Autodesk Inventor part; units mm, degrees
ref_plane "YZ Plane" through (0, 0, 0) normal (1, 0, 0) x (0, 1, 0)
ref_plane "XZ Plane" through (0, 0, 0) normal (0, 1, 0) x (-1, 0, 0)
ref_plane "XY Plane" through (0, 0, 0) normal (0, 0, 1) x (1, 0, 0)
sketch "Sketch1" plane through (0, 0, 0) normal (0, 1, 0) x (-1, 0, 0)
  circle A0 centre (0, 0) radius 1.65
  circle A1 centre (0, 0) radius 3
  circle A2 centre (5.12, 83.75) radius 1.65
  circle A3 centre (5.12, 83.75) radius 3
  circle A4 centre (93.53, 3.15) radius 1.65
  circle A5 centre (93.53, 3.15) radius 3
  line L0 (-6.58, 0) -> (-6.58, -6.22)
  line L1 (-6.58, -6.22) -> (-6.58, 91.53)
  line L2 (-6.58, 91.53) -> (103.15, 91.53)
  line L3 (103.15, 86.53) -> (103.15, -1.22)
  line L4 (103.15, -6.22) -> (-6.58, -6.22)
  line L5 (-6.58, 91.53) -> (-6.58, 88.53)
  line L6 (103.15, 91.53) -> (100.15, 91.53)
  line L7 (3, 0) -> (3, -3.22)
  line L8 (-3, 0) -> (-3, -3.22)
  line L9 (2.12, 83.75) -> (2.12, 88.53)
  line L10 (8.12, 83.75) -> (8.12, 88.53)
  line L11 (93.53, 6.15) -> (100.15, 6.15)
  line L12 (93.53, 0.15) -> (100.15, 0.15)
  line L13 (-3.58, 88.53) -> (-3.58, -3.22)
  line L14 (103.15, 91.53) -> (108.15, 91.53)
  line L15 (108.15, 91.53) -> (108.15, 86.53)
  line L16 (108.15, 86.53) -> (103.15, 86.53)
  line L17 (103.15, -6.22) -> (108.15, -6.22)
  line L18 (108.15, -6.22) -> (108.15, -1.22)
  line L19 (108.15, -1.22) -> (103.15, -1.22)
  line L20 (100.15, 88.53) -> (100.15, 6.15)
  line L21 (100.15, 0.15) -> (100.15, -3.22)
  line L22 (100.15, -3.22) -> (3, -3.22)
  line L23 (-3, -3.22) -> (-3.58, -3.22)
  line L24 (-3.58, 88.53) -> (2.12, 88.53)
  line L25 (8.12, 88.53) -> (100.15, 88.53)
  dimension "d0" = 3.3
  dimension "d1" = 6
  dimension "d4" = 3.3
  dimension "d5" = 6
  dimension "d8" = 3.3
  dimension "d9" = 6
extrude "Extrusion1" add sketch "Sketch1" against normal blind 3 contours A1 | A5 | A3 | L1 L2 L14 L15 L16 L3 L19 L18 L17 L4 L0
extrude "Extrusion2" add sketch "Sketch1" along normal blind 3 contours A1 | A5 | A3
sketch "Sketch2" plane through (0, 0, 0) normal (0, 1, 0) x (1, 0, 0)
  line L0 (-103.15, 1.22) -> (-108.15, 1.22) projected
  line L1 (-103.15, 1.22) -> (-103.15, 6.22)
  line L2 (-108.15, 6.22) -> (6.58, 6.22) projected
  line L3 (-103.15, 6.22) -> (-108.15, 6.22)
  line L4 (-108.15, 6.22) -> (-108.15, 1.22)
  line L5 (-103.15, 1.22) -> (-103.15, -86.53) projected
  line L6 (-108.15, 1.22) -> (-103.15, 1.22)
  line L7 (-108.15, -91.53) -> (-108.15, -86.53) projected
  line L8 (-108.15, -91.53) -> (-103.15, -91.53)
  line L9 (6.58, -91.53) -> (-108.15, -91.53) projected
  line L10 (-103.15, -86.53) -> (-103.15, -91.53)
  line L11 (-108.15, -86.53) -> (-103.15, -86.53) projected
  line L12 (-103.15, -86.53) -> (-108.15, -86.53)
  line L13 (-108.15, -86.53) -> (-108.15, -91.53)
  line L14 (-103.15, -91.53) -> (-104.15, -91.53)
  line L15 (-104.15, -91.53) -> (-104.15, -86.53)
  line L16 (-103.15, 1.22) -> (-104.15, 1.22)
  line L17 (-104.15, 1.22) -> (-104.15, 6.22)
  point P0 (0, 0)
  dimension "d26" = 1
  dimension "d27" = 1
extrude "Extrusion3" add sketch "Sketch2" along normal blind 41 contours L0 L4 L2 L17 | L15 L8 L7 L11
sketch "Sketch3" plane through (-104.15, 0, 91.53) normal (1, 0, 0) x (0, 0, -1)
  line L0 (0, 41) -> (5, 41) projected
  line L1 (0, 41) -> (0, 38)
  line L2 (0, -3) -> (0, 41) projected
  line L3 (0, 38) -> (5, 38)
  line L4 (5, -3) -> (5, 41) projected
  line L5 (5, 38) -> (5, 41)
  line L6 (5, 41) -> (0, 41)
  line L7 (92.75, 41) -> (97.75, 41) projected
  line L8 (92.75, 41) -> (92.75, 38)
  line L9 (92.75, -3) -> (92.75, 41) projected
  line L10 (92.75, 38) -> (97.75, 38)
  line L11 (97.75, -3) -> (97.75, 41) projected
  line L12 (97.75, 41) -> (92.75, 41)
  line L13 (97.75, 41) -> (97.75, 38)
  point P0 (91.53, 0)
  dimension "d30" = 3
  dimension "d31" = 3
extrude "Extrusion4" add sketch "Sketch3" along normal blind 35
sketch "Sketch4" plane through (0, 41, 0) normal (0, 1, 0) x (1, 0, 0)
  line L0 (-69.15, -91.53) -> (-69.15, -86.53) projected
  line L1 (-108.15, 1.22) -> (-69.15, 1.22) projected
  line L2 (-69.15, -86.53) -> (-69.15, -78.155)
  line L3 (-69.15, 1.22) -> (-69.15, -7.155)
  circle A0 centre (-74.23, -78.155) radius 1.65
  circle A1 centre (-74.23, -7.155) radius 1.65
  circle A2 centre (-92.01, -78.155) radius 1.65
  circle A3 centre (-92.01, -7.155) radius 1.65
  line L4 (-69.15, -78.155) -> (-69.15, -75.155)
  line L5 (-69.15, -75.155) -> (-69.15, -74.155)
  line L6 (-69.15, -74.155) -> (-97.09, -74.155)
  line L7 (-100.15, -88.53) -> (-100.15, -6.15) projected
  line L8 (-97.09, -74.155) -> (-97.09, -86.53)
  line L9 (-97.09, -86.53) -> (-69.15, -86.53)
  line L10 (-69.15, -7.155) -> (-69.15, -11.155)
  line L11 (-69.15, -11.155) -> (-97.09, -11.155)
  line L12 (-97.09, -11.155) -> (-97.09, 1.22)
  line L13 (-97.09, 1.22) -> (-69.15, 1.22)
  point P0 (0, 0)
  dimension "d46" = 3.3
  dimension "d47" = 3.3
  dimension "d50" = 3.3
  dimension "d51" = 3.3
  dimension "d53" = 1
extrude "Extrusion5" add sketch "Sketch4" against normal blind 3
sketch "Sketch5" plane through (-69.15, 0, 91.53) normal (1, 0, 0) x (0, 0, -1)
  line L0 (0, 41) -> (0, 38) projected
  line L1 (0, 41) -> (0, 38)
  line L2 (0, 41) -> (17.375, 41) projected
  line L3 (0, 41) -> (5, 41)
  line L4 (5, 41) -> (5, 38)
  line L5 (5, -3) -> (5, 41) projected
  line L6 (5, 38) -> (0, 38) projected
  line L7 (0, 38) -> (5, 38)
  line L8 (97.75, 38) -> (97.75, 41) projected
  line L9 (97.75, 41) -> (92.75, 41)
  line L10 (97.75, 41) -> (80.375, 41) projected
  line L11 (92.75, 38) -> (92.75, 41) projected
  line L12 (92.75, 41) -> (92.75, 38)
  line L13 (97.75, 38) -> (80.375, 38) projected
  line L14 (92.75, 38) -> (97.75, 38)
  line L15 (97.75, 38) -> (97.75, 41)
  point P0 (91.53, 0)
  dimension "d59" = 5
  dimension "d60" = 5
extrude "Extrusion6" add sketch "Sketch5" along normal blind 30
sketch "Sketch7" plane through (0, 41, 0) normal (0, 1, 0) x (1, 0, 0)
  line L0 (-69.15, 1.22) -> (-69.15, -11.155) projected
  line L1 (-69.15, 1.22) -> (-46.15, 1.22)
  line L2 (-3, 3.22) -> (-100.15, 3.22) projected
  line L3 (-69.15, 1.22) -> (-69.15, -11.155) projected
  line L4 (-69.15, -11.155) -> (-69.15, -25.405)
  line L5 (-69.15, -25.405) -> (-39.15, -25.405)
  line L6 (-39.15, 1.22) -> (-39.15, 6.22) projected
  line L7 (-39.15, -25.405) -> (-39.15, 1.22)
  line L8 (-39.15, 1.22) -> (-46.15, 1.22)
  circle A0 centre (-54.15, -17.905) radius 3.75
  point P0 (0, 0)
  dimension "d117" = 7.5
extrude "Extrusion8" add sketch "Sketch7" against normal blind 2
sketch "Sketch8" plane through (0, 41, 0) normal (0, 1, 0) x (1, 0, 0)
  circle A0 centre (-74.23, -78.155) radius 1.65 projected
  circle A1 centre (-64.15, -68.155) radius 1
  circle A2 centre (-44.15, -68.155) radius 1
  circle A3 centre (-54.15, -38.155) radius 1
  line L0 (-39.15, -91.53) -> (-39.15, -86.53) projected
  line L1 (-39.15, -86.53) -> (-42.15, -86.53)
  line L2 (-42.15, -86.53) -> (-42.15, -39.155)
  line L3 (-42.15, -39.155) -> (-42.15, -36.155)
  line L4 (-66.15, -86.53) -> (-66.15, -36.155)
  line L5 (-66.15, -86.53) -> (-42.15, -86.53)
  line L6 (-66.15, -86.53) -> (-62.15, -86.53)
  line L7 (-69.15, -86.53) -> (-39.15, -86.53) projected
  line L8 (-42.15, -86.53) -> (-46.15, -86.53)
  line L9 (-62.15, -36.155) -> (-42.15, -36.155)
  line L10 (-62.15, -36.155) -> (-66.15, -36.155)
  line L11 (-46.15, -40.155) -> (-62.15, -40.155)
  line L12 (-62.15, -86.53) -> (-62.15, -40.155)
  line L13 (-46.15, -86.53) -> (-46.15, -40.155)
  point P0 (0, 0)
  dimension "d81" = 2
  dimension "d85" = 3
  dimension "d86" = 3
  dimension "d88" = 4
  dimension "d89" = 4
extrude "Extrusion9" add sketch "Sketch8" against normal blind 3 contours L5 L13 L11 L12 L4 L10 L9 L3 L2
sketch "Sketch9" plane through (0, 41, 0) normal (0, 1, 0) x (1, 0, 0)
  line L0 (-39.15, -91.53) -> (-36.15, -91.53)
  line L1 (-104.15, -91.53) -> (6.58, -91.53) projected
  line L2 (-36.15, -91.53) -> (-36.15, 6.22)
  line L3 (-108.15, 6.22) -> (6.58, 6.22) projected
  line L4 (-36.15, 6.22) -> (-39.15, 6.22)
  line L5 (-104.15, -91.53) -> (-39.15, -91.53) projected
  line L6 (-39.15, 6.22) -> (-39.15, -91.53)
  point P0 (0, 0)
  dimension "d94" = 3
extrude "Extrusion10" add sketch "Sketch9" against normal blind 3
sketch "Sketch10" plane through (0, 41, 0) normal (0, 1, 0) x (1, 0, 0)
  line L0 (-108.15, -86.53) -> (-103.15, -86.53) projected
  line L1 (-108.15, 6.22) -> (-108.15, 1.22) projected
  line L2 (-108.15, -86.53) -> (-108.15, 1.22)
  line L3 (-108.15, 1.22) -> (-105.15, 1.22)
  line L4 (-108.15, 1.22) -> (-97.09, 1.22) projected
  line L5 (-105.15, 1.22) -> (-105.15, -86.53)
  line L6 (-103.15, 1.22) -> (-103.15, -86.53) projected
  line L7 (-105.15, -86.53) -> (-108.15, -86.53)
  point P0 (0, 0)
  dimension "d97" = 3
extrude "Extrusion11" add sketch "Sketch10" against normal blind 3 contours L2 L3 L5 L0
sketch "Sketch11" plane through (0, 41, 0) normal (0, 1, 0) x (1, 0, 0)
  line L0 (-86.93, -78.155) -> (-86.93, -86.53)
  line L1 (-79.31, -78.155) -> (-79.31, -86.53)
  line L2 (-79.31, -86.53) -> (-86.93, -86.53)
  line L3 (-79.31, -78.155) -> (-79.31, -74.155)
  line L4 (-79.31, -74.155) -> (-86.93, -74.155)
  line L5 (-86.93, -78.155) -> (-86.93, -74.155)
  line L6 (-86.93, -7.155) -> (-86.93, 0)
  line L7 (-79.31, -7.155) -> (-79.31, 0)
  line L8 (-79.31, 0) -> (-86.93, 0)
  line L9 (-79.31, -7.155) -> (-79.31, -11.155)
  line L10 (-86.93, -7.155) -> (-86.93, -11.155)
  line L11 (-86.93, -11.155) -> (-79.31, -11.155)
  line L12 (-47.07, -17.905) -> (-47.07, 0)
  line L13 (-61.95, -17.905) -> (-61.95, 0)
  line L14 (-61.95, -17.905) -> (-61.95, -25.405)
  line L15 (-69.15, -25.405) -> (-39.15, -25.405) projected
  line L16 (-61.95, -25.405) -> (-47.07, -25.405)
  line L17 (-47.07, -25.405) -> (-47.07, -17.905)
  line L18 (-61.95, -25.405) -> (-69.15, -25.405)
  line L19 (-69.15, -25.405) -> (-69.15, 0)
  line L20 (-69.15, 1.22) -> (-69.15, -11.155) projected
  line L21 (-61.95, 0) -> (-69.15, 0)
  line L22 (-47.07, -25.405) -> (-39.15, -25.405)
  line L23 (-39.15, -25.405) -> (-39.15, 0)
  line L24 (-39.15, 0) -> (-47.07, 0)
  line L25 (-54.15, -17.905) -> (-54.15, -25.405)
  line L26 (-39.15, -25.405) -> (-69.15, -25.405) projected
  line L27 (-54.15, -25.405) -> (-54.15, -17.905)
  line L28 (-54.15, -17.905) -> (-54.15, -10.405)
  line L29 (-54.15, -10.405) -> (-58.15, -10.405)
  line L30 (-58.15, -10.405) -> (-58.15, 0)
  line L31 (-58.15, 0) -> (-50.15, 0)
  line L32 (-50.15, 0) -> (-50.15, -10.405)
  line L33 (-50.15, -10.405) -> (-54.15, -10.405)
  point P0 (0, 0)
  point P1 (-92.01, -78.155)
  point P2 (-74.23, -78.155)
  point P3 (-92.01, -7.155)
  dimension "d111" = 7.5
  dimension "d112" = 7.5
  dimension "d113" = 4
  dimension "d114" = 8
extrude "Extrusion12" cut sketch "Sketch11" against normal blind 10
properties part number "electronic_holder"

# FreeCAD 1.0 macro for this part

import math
import FreeCAD as App
import Part
import Sketcher
Q = App.Units.Quantity

doc = App.newDocument("Part")
body = doc.addObject("PartDesign::Body", "Body")

# Sketch on XZ plane
sketch1 = doc.addObject("Sketcher::SketchObject", "Sketch")
body.addObject(sketch1)
sketch1.AttachmentSupport = (doc.XZ_Plane, [""])
sketch1.MapMode = "FlatFace"
sketch1.addGeometry(Part.LineSegment(App.Vector(6.6, -6.2, 0), App.Vector(-108.2, -6.2, 0)), False)
sketch1.addGeometry(Part.LineSegment(App.Vector(-108.2, -6.2, 0), App.Vector(-108.2, -1.2, 0)), False)
sketch1.addGeometry(Part.LineSegment(App.Vector(-108.2, -1.2, 0), App.Vector(-103.2, -1.2, 0)), False)
sketch1.addGeometry(Part.LineSegment(App.Vector(-103.2, -1.2, 0), App.Vector(-103.2, 86.5, 0)), False)
sketch1.addGeometry(Part.LineSegment(App.Vector(-103.2, 86.5, 0), App.Vector(-108.2, 86.5, 0)), False)
sketch1.addGeometry(Part.LineSegment(App.Vector(-108.2, 86.5, 0), App.Vector(-108.2, 91.5, 0)), False)
sketch1.addGeometry(Part.LineSegment(App.Vector(-108.2, 91.5, 0), App.Vector(6.6, 91.5, 0)), False)
sketch1.addGeometry(Part.LineSegment(App.Vector(6.6, 91.5, 0), App.Vector(6.6, -6.2, 0)), False)
sketch1.addGeometry(Part.ArcOfCircle(Part.Circle(App.Vector(0, 0, 0), App.Vector(0, 0, 1), 3), math.radians(0), math.radians(180)), False)
sketch1.addGeometry(Part.LineSegment(App.Vector(3, 0, 0), App.Vector(3, -3.2, 0)), False)
sketch1.addGeometry(Part.LineSegment(App.Vector(3, -3.2, 0), App.Vector(3.6, -3.2, 0)), False)
sketch1.addGeometry(Part.LineSegment(App.Vector(3.6, -3.2, 0), App.Vector(3.6, 88.5, 0)), False)
sketch1.addGeometry(Part.LineSegment(App.Vector(3.6, 88.5, 0), App.Vector(-2.1, 88.5, 0)), False)
sketch1.addGeometry(Part.LineSegment(App.Vector(-2.1, 88.5, 0), App.Vector(-2.1, 83.8, 0)), False)
sketch1.addGeometry(Part.ArcOfCircle(Part.Circle(App.Vector(-5.1, 83.8, 0), App.Vector(0, 0, 1), 3), math.radians(180), math.radians(360)), False)
sketch1.addGeometry(Part.LineSegment(App.Vector(-8.1, 83.8, 0), App.Vector(-8.1, 88.5, 0)), False)
sketch1.addGeometry(Part.LineSegment(App.Vector(-8.1, 88.5, 0), App.Vector(-100.2, 88.5, 0)), False)
sketch1.addGeometry(Part.LineSegment(App.Vector(-100.2, 88.5, 0), App.Vector(-100.2, 6.2, 0)), False)
sketch1.addGeometry(Part.LineSegment(App.Vector(-100.2, 6.2, 0), App.Vector(-93.5, 6.2, 0)), False)
sketch1.addGeometry(Part.ArcOfCircle(Part.Circle(App.Vector(-93.5, 3.1, 0), App.Vector(0, 0, 1), 3), math.radians(-90), math.radians(90)), False)
sketch1.addGeometry(Part.LineSegment(App.Vector(-93.5, 0.1, 0), App.Vector(-100.2, 0.1, 0)), False)
sketch1.addGeometry(Part.LineSegment(App.Vector(-100.2, 0.1, 0), App.Vector(-100.2, -3.2, 0)), False)
sketch1.addGeometry(Part.LineSegment(App.Vector(-100.2, -3.2, 0), App.Vector(-3, -3.2, 0)), False)
sketch1.addGeometry(Part.LineSegment(App.Vector(-3, -3.2, 0), App.Vector(-3, 0, 0)), False)
sketch1.addGeometry(Part.Circle(App.Vector(0, 0, 0), App.Vector(0, 0, 1), 1.6), False)
sketch1.addGeometry(Part.Circle(App.Vector(-93.5, 3.1, 0), App.Vector(0, 0, 1), 1.6), False)
sketch1.addGeometry(Part.Circle(App.Vector(-5.1, 83.8, 0), App.Vector(0, 0, 1), 1.6), False)
sketch1.addConstraint(Sketcher.Constraint("Coincident", 0, 2, 1, 1))
sketch1.addConstraint(Sketcher.Constraint("Coincident", 1, 2, 2, 1))
sketch1.addConstraint(Sketcher.Constraint("Coincident", 2, 2, 3, 1))
sketch1.addConstraint(Sketcher.Constraint("Coincident", 3, 2, 4, 1))
sketch1.addConstraint(Sketcher.Constraint("Coincident", 4, 2, 5, 1))
sketch1.addConstraint(Sketcher.Constraint("Coincident", 5, 2, 6, 1))
sketch1.addConstraint(Sketcher.Constraint("Coincident", 6, 2, 7, 1))
sketch1.addConstraint(Sketcher.Constraint("Coincident", 7, 2, 0, 1))
sketch1.addConstraint(Sketcher.Constraint("Tangent", 8, 1, 9, 1))
sketch1.addConstraint(Sketcher.Constraint("Coincident", 9, 2, 10, 1))
sketch1.addConstraint(Sketcher.Constraint("Coincident", 10, 2, 11, 1))
sketch1.addConstraint(Sketcher.Constraint("Coincident", 11, 2, 12, 1))
sketch1.addConstraint(Sketcher.Constraint("Coincident", 12, 2, 13, 1))
sketch1.addConstraint(Sketcher.Constraint("Tangent", 13, 2, 14, 2))
sketch1.addConstraint(Sketcher.Constraint("Tangent", 14, 1, 15, 1))
sketch1.addConstraint(Sketcher.Constraint("Coincident", 15, 2, 16, 1))
sketch1.addConstraint(Sketcher.Constraint("Coincident", 16, 2, 17, 1))
sketch1.addConstraint(Sketcher.Constraint("Coincident", 17, 2, 18, 1))
sketch1.addConstraint(Sketcher.Constraint("Tangent", 18, 2, 19, 2))
sketch1.addConstraint(Sketcher.Constraint("Tangent", 19, 1, 20, 1))
sketch1.addConstraint(Sketcher.Constraint("Coincident", 20, 2, 21, 1))
sketch1.addConstraint(Sketcher.Constraint("Coincident", 21, 2, 22, 1))
sketch1.addConstraint(Sketcher.Constraint("Coincident", 22, 2, 23, 1))
sketch1.addConstraint(Sketcher.Constraint("Tangent", 23, 2, 8, 2))
sketch1.addConstraint(Sketcher.Constraint("Horizontal", 0))
sketch1.addConstraint(Sketcher.Constraint("Vertical", 1))
sketch1.addConstraint(Sketcher.Constraint("Horizontal", 2))
sketch1.addConstraint(Sketcher.Constraint("Vertical", 3))
sketch1.addConstraint(Sketcher.Constraint("Horizontal", 4))
sketch1.addConstraint(Sketcher.Constraint("Vertical", 5))
sketch1.addConstraint(Sketcher.Constraint("Horizontal", 6))
sketch1.addConstraint(Sketcher.Constraint("Vertical", 7))
sketch1.addConstraint(Sketcher.Constraint("Vertical", 9))
sketch1.addConstraint(Sketcher.Constraint("Horizontal", 10))
sketch1.addConstraint(Sketcher.Constraint("Vertical", 11))
sketch1.addConstraint(Sketcher.Constraint("Horizontal", 12))
sketch1.addConstraint(Sketcher.Constraint("Vertical", 13))
sketch1.addConstraint(Sketcher.Constraint("Vertical", 15))
sketch1.addConstraint(Sketcher.Constraint("Horizontal", 16))
sketch1.addConstraint(Sketcher.Constraint("Vertical", 17))
sketch1.addConstraint(Sketcher.Constraint("Horizontal", 18))
sketch1.addConstraint(Sketcher.Constraint("Horizontal", 20))
sketch1.addConstraint(Sketcher.Constraint("Vertical", 21))
sketch1.addConstraint(Sketcher.Constraint("Horizontal", 22))
sketch1.addConstraint(Sketcher.Constraint("Vertical", 23))
sketch1.addConstraint(Sketcher.Constraint("Coincident", 8, 3, -1, 1))
sketch1.addConstraint(Sketcher.Constraint("Coincident", 24, 3, -1, 1))
sketch1.addConstraint(Sketcher.Constraint("Coincident", 25, 3, 19, 3))
sketch1.addConstraint(Sketcher.Constraint("Coincident", 26, 3, 14, 3))
sketch1.addConstraint(Sketcher.Constraint("Equal", 8, 14))
sketch1.addConstraint(Sketcher.Constraint("Equal", 14, 19))
sketch1.addConstraint(Sketcher.Constraint("Equal", 24, 25))
sketch1.addConstraint(Sketcher.Constraint("Equal", 25, 26))
sketch1.addConstraint(Sketcher.Constraint("Horizontal", 12, 2, 15, 2))
sketch1.addConstraint(Sketcher.Constraint("Horizontal", 10, 2, 21, 2))
sketch1.addConstraint(Sketcher.Constraint("Vertical", 1, 2, 4, 2))
sketch1.addConstraint(Sketcher.Constraint("Vertical", 17, 2, 20, 2))
sketch1.addConstraint(Sketcher.Constraint("Equal", 4, 1))
sketch1.addConstraint(Sketcher.Constraint("Equal", 1, 5))
sketch1.addConstraint(Sketcher.Constraint("Radius", 8, Q("3 mm")))
sketch1.addConstraint(Sketcher.Constraint("Diameter", 24, Q("3.3 mm")))
sketch1.addConstraint(Sketcher.Constraint("DistanceX", 2, 1, 2, 2, Q("5 mm")))
sketch1.addConstraint(Sketcher.Constraint("DistanceX", 12, 2, 12, 1, Q("5.7 mm")))
sketch1.addConstraint(Sketcher.Constraint("DistanceY", 7, 2, 9, 2, Q("3 mm")))
sketch1.addConstraint(Sketcher.Constraint("DistanceX", 10, 2, 7, 2, Q("3 mm")))
sketch1.addConstraint(Sketcher.Constraint("DistanceY", 11, 2, 6, 2, Q("3 mm")))
sketch1.addConstraint(Sketcher.Constraint("DistanceX", 3, 2, 16, 2, Q("3 mm")))
sketch1.addConstraint(Sketcher.Constraint("DistanceX", 0, 2, 0, 1, Q("114.73 mm")))
sketch1.addConstraint(Sketcher.Constraint("DistanceX", 10, 1, 10, 2, Q("0.58 mm")))
sketch1.addConstraint(Sketcher.Constraint("DistanceX", 18, 1, 18, 2, Q("6.62 mm")))
sketch1.addConstraint(Sketcher.Constraint("DistanceY", 3, 1, 3, 2, Q("87.75 mm")))
sketch1.addConstraint(Sketcher.Constraint("DistanceY", 9, 2, 9, 1, Q("3.22 mm")))
sketch1.addConstraint(Sketcher.Constraint("DistanceY", 13, 2, 13, 1, Q("4.78 mm")))
sketch1.addConstraint(Sketcher.Constraint("DistanceY", 17, 2, 17, 1, Q("82.38 mm")))
pad1 = doc.addObject("PartDesign::Pad", "Pad")
body.addObject(pad1)
pad1.Profile = sketch1
pad1.Length = 3

# Sketch on XZ plane
sketch2 = doc.addObject("Sketcher::SketchObject", "Sketch001")
body.addObject(sketch2)
sketch2.AttachmentSupport = (doc.XZ_Plane, [""])
sketch2.MapMode = "FlatFace"
sketch2.addGeometry(Part.Circle(App.Vector(0, 0, 0), App.Vector(0, 0, 1), 3), False)
sketch2.addGeometry(Part.Circle(App.Vector(0, 0, 0), App.Vector(0, 0, 1), 1.6), False)
sketch2.addGeometry(Part.Circle(App.Vector(-93.5, 3.1, 0), App.Vector(0, 0, 1), 3), False)
sketch2.addGeometry(Part.Circle(App.Vector(-93.5, 3.1, 0), App.Vector(0, 0, 1), 1.6), False)
sketch2.addGeometry(Part.Circle(App.Vector(-5.1, 83.8, 0), App.Vector(0, 0, 1), 3), False)
sketch2.addGeometry(Part.Circle(App.Vector(-5.1, 83.8, 0), App.Vector(0, 0, 1), 1.6), False)
sketch2.addConstraint(Sketcher.Constraint("Coincident", 0, 3, -1, 1))
sketch2.addConstraint(Sketcher.Constraint("Coincident", 1, 3, -1, 1))
sketch2.addConstraint(Sketcher.Constraint("Coincident", 3, 3, 2, 3))
sketch2.addConstraint(Sketcher.Constraint("Coincident", 5, 3, 4, 3))
sketch2.addConstraint(Sketcher.Constraint("Equal", 0, 2))
sketch2.addConstraint(Sketcher.Constraint("Equal", 1, 3))
sketch2.addConstraint(Sketcher.Constraint("Equal", 2, 4))
sketch2.addConstraint(Sketcher.Constraint("Equal", 3, 5))
sketch2.addConstraint(Sketcher.Constraint("Diameter", 0, Q("6 mm")))
sketch2.addConstraint(Sketcher.Constraint("Diameter", 1, Q("3.3 mm")))
sketch2.addConstraint(Sketcher.Constraint("DistanceY", 2, 3, 4, 3, Q("80.6 mm")))
sketch2.addConstraint(Sketcher.Constraint("DistanceX", 2, 3, -1, 1, Q("93.53 mm")))
sketch2.addConstraint(Sketcher.Constraint("DistanceY", -1, 1, 2, 3, Q("3.15 mm")))
sketch2.addConstraint(Sketcher.Constraint("DistanceX", 4, 3, -1, 1, Q("5.12 mm")))
pad2 = doc.addObject("PartDesign::Pad", "Pad001")
body.addObject(pad2)
pad2.Profile = sketch2
pad2.Length = 3
pad2.Reversed = True

# Sketch on XZ plane
sketch3 = doc.addObject("Sketcher::SketchObject", "Sketch002")
body.addObject(sketch3)
sketch3.AttachmentSupport = (doc.XZ_Plane, [""])
sketch3.MapMode = "FlatFace"
sketch3.addGeometry(Part.LineSegment(App.Vector(-108.2, -1.2, 0), App.Vector(-104.2, -1.2, 0)), False)
sketch3.addGeometry(Part.LineSegment(App.Vector(-104.2, -1.2, 0), App.Vector(-104.2, -6.2, 0)), False)
sketch3.addGeometry(Part.LineSegment(App.Vector(-104.2, -6.2, 0), App.Vector(-108.2, -6.2, 0)), False)
sketch3.addGeometry(Part.LineSegment(App.Vector(-108.2, -6.2, 0), App.Vector(-108.2, -1.2, 0)), False)
sketch3.addGeometry(Part.LineSegment(App.Vector(-104.2, 91.5, 0), App.Vector(-104.2, 86.5, 0)), False)
sketch3.addGeometry(Part.LineSegment(App.Vector(-104.2, 86.5, 0), App.Vector(-108.2, 86.5, 0)), False)
sketch3.addGeometry(Part.LineSegment(App.Vector(-108.2, 86.5, 0), App.Vector(-108.2, 91.5, 0)), False)
sketch3.addGeometry(Part.LineSegment(App.Vector(-108.2, 91.5, 0), App.Vector(-104.2, 91.5, 0)), False)
sketch3.addConstraint(Sketcher.Constraint("Coincident", 0, 2, 1, 1))
sketch3.addConstraint(Sketcher.Constraint("Coincident", 1, 2, 2, 1))
sketch3.addConstraint(Sketcher.Constraint("Coincident", 2, 2, 3, 1))
sketch3.addConstraint(Sketcher.Constraint("Coincident", 3, 2, 0, 1))
sketch3.addConstraint(Sketcher.Constraint("Coincident", 4, 2, 5, 1))
sketch3.addConstraint(Sketcher.Constraint("Coincident", 5, 2, 6, 1))
sketch3.addConstraint(Sketcher.Constraint("Coincident", 6, 2, 7, 1))
sketch3.addConstraint(Sketcher.Constraint("Coincident", 7, 2, 4, 1))
sketch3.addConstraint(Sketcher.Constraint("Horizontal", 0))
sketch3.addConstraint(Sketcher.Constraint("Vertical", 1))
sketch3.addConstraint(Sketcher.Constraint("Horizontal", 2))
sketch3.addConstraint(Sketcher.Constraint("Vertical", 3))
sketch3.addConstraint(Sketcher.Constraint("Vertical", 4))
sketch3.addConstraint(Sketcher.Constraint("Horizontal", 5))
sketch3.addConstraint(Sketcher.Constraint("Vertical", 6))
sketch3.addConstraint(Sketcher.Constraint("Horizontal", 7))
sketch3.addConstraint(Sketcher.Constraint("Vertical", 1, 2, 4, 2))
sketch3.addConstraint(Sketcher.Constraint("Vertical", 3, 2, 5, 2))
sketch3.addConstraint(Sketcher.Constraint("Equal", 3, 4))
sketch3.addConstraint(Sketcher.Constraint("DistanceX", 0, 1, 0, 2, Q("4 mm")))
sketch3.addConstraint(Sketcher.Constraint("DistanceY", 1, 2, 1, 1, Q("5 mm")))
sketch3.addConstraint(Sketcher.Constraint("DistanceX", 0, 2, -1, 1, Q("104.15 mm")))
sketch3.addConstraint(Sketcher.Constraint("DistanceY", 0, 2, -1, 1, Q("1.22 mm")))
sketch3.addConstraint(Sketcher.Constraint("DistanceY", -1, 1, 4, 2, Q("86.53 mm")))
pad3 = doc.addObject("PartDesign::Pad", "Pad002")
body.addObject(pad3)
pad3.Profile = sketch3
pad3.Length = 41
pad3.Reversed = True

# Sketch on YZ plane
sketch4 = doc.addObject("Sketcher::SketchObject", "Sketch003")
body.addObject(sketch4)
sketch4.AttachmentSupport = (doc.YZ_Plane, [""])
sketch4.MapMode = "FlatFace"
sketch4.AttachmentOffset = App.Placement(App.Vector(0, 0, -104.15), App.Rotation())
sketch4.addGeometry(Part.LineSegment(App.Vector(41, 86.5, 0), App.Vector(41, 91.5, 0)), False)
sketch4.addGeometry(Part.LineSegment(App.Vector(41, 91.5, 0), App.Vector(38, 91.5, 0)), False)
sketch4.addGeometry(Part.LineSegment(App.Vector(38, 91.5, 0), App.Vector(38, 86.5, 0)), False)
sketch4.addGeometry(Part.LineSegment(App.Vector(38, 86.5, 0), App.Vector(41, 86.5, 0)), False)
sketch4.addGeometry(Part.LineSegment(App.Vector(41, -6.2, 0), App.Vector(41, -1.2, 0)), False)
sketch4.addGeometry(Part.LineSegment(App.Vector(41, -1.2, 0), App.Vector(38, -1.2, 0)), False)
sketch4.addGeometry(Part.LineSegment(App.Vector(38, -1.2, 0), App.Vector(38, -6.2, 0)), False)
sketch4.addGeometry(Part.LineSegment(App.Vector(38, -6.2, 0), App.Vector(41, -6.2, 0)), False)
sketch4.addConstraint(Sketcher.Constraint("Coincident", 0, 2, 1, 1))
sketch4.addConstraint(Sketcher.Constraint("Coincident", 1, 2, 2, 1))
sketch4.addConstraint(Sketcher.Constraint("Coincident", 2, 2, 3, 1))
sketch4.addConstraint(Sketcher.Constraint("Coincident", 3, 2, 0, 1))
sketch4.addConstraint(Sketcher.Constraint("Coincident", 4, 2, 5, 1))
sketch4.addConstraint(Sketcher.Constraint("Coincident", 5, 2, 6, 1))
sketch4.addConstraint(Sketcher.Constraint("Coincident", 6, 2, 7, 1))
sketch4.addConstraint(Sketcher.Constraint("Coincident", 7, 2, 4, 1))
sketch4.addConstraint(Sketcher.Constraint("Vertical", 0))
sketch4.addConstraint(Sketcher.Constraint("Horizontal", 1))
sketch4.addConstraint(Sketcher.Constraint("Vertical", 2))
sketch4.addConstraint(Sketcher.Constraint("Horizontal", 3))
sketch4.addConstraint(Sketcher.Constraint("Vertical", 4))
sketch4.addConstraint(Sketcher.Constraint("Horizontal", 5))
sketch4.addConstraint(Sketcher.Constraint("Vertical", 6))
sketch4.addConstraint(Sketcher.Constraint("Horizontal", 7))
sketch4.addConstraint(Sketcher.Constraint("Vertical", 3, 2, 4, 2))
sketch4.addConstraint(Sketcher.Constraint("Vertical", 2, 2, 5, 2))
sketch4.addConstraint(Sketcher.Constraint("Equal", 2, 4))
sketch4.addConstraint(Sketcher.Constraint("DistanceX", 1, 2, 1, 1, Q("3 mm")))
sketch4.addConstraint(Sketcher.Constraint("DistanceY", 0, 1, 0, 2, Q("5 mm")))
sketch4.addConstraint(Sketcher.Constraint("DistanceX", -1, 1, 0, 2, Q("41 mm")))
sketch4.addConstraint(Sketcher.Constraint("DistanceY", -1, 1, 0, 2, Q("91.53 mm")))
sketch4.addConstraint(Sketcher.Constraint("DistanceY", 4, 2, -1, 1, Q("1.22 mm")))
pad4 = doc.addObject("PartDesign::Pad", "Pad003")
body.addObject(pad4)
pad4.Profile = sketch4
pad4.Length = 35

# Sketch on XZ plane
sketch5 = doc.addObject("Sketcher::SketchObject", "Sketch004")
body.addObject(sketch5)
sketch5.AttachmentSupport = (doc.XZ_Plane, [""])
sketch5.MapMode = "FlatFace"
sketch5.AttachmentOffset = App.Placement(App.Vector(0, 0, -41), App.Rotation())
sketch5.addGeometry(Part.LineSegment(App.Vector(-69.2, -1.2, 0), App.Vector(-97.1, -1.2, 0)), False)
sketch5.addGeometry(Part.LineSegment(App.Vector(-97.1, -1.2, 0), App.Vector(-97.1, 11.2, 0)), False)
sketch5.addGeometry(Part.LineSegment(App.Vector(-97.1, 11.2, 0), App.Vector(-69.2, 11.2, 0)), False)
sketch5.addGeometry(Part.LineSegment(App.Vector(-69.2, 11.2, 0), App.Vector(-69.2, -1.2, 0)), False)
sketch5.addGeometry(Part.Circle(App.Vector(-92, 7.2, 0), App.Vector(0, 0, 1), 1.6), False)
sketch5.addGeometry(Part.Circle(App.Vector(-74.2, 7.2, 0), App.Vector(0, 0, 1), 1.6), False)
sketch5.addGeometry(Part.LineSegment(App.Vector(-97.1, 86.5, 0), App.Vector(-69.2, 86.5, 0)), False)
sketch5.addGeometry(Part.LineSegment(App.Vector(-69.2, 86.5, 0), App.Vector(-69.2, 74.2, 0)), False)
sketch5.addGeometry(Part.LineSegment(App.Vector(-69.2, 74.2, 0), App.Vector(-97.1, 74.2, 0)), False)
sketch5.addGeometry(Part.LineSegment(App.Vector(-97.1, 74.2, 0), App.Vector(-97.1, 86.5, 0)), False)
sketch5.addGeometry(Part.Circle(App.Vector(-92, 78.2, 0), App.Vector(0, 0, 1), 1.6), False)
sketch5.addGeometry(Part.Circle(App.Vector(-74.2, 78.2, 0), App.Vector(0, 0, 1), 1.6), False)
sketch5.addConstraint(Sketcher.Constraint("Coincident", 0, 2, 1, 1))
sketch5.addConstraint(Sketcher.Constraint("Coincident", 1, 2, 2, 1))
sketch5.addConstraint(Sketcher.Constraint("Coincident", 2, 2, 3, 1))
sketch5.addConstraint(Sketcher.Constraint("Coincident", 3, 2, 0, 1))
sketch5.addConstraint(Sketcher.Constraint("Coincident", 6, 2, 7, 1))
sketch5.addConstraint(Sketcher.Constraint("Coincident", 7, 2, 8, 1))
sketch5.addConstraint(Sketcher.Constraint("Coincident", 8, 2, 9, 1))
sketch5.addConstraint(Sketcher.Constraint("Coincident", 9, 2, 6, 1))
sketch5.addConstraint(Sketcher.Constraint("Horizontal", 0))
sketch5.addConstraint(Sketcher.Constraint("Vertical", 1))
sketch5.addConstraint(Sketcher.Constraint("Horizontal", 2))
sketch5.addConstraint(Sketcher.Constraint("Vertical", 3))
sketch5.addConstraint(Sketcher.Constraint("Horizontal", 6))
sketch5.addConstraint(Sketcher.Constraint("Vertical", 7))
sketch5.addConstraint(Sketcher.Constraint("Horizontal", 8))
sketch5.addConstraint(Sketcher.Constraint("Vertical", 9))
sketch5.addConstraint(Sketcher.Constraint("Equal", 4, 5))
sketch5.addConstraint(Sketcher.Constraint("Equal", 5, 10))
sketch5.addConstraint(Sketcher.Constraint("Equal", 10, 11))
sketch5.addConstraint(Sketcher.Constraint("Horizontal", 4, 3, 5, 3))
sketch5.addConstraint(Sketcher.Constraint("Horizontal", 10, 3, 11, 3))
sketch5.addConstraint(Sketcher.Constraint("Vertical", 4, 3, 10, 3))
sketch5.addConstraint(Sketcher.Constraint("Vertical", 5, 3, 11, 3))
sketch5.addConstraint(Sketcher.Constraint("Vertical", 3, 2, 6, 2))
sketch5.addConstraint(Sketcher.Constraint("Vertical", 1, 2, 8, 2))
sketch5.addConstraint(Sketcher.Constraint("Equal", 3, 7))
sketch5.addConstraint(Sketcher.Constraint("Diameter", 4, Q("3.3 mm")))
sketch5.addConstraint(Sketcher.Constraint("DistanceY", 4, 3, 10, 3, Q("71 mm")))
sketch5.addConstraint(Sketcher.Constraint("DistanceY", 4, 3, 1, 2, Q("4 mm")))
sketch5.addConstraint(Sketcher.Constraint("DistanceY", 7, 2, 11, 3, Q("4 mm")))
sketch5.addConstraint(Sketcher.Constraint("DistanceX", 0, 2, 0, 1, Q("27.94 mm")))
sketch5.addConstraint(Sketcher.Constraint("DistanceY", 1, 1, 1, 2, Q("12.375 mm")))
sketch5.addConstraint(Sketcher.Constraint("DistanceX", 4, 3, -1, 1, Q("92.01 mm")))
sketch5.addConstraint(Sketcher.Constraint("DistanceX", 5, 3, -1, 1, Q("74.23 mm")))
sketch5.addConstraint(Sketcher.Constraint("DistanceX", 0, 2, -1, 1, Q("97.09 mm")))
sketch5.addConstraint(Sketcher.Constraint("DistanceY", 0, 2, -1, 1, Q("1.22 mm")))
pad5 = doc.addObject("PartDesign::Pad", "Pad004")
body.addObject(pad5)
pad5.Profile = sketch5
pad5.Length = 3

# Sketch on YZ plane
sketch6 = doc.addObject("Sketcher::SketchObject", "Sketch005")
body.addObject(sketch6)
sketch6.AttachmentSupport = (doc.YZ_Plane, [""])
sketch6.MapMode = "FlatFace"
sketch6.AttachmentOffset = App.Placement(App.Vector(0, 0, -69.15), App.Rotation())
sketch6.addGeometry(Part.LineSegment(App.Vector(41, 86.5, 0), App.Vector(41, 91.5, 0)), False)
sketch6.addGeometry(Part.LineSegment(App.Vector(41, 91.5, 0), App.Vector(38, 91.5, 0)), False)
sketch6.addGeometry(Part.LineSegment(App.Vector(38, 91.5, 0), App.Vector(38, 86.5, 0)), False)
sketch6.addGeometry(Part.LineSegment(App.Vector(38, 86.5, 0), App.Vector(41, 86.5, 0)), False)
sketch6.addGeometry(Part.LineSegment(App.Vector(38, -1.2, 0), App.Vector(38, -6.2, 0)), False)
sketch6.addGeometry(Part.LineSegment(App.Vector(38, -6.2, 0), App.Vector(41, -6.2, 0)), False)
sketch6.addGeometry(Part.LineSegment(App.Vector(41, -6.2, 0), App.Vector(41, -1.2, 0)), False)
sketch6.addGeometry(Part.LineSegment(App.Vector(41, -1.2, 0), App.Vector(38, -1.2, 0)), False)
sketch6.addConstraint(Sketcher.Constraint("Coincident", 0, 2, 1, 1))
sketch6.addConstraint(Sketcher.Constraint("Coincident", 1, 2, 2, 1))
sketch6.addConstraint(Sketcher.Constraint("Coincident", 2, 2, 3, 1))
sketch6.addConstraint(Sketcher.Constraint("Coincident", 3, 2, 0, 1))
sketch6.addConstraint(Sketcher.Constraint("Coincident", 4, 2, 5, 1))
sketch6.addConstraint(Sketcher.Constraint("Coincident", 5, 2, 6, 1))
sketch6.addConstraint(Sketcher.Constraint("Coincident", 6, 2, 7, 1))
sketch6.addConstraint(Sketcher.Constraint("Coincident", 7, 2, 4, 1))
sketch6.addConstraint(Sketcher.Constraint("Vertical", 0))
sketch6.addConstraint(Sketcher.Constraint("Horizontal", 1))
sketch6.addConstraint(Sketcher.Constraint("Vertical", 2))
sketch6.addConstraint(Sketcher.Constraint("Horizontal", 3))
sketch6.addConstraint(Sketcher.Constraint("Vertical", 4))
sketch6.addConstraint(Sketcher.Constraint("Horizontal", 5))
sketch6.addConstraint(Sketcher.Constraint("Vertical", 6))
sketch6.addConstraint(Sketcher.Constraint("Horizontal", 7))
sketch6.addConstraint(Sketcher.Constraint("Vertical", 2, 2, 4, 2))
sketch6.addConstraint(Sketcher.Constraint("Vertical", 3, 2, 5, 2))
sketch6.addConstraint(Sketcher.Constraint("Equal", 2, 4))
sketch6.addConstraint(Sketcher.Constraint("DistanceY", 0, 1, 0, 2, Q("5 mm")))
sketch6.addConstraint(Sketcher.Constraint("DistanceX", 1, 2, 1, 1, Q("3 mm")))
sketch6.addConstraint(Sketcher.Constraint("DistanceX", -1, 1, 0, 2, Q("41 mm")))
sketch6.addConstraint(Sketcher.Constraint("DistanceY", -1, 1, 0, 2, Q("91.53 mm")))
sketch6.addConstraint(Sketcher.Constraint("DistanceY", 4, 2, -1, 1, Q("6.22 mm")))
pad6 = doc.addObject("PartDesign::Pad", "Pad005")
body.addObject(pad6)
pad6.Profile = sketch6
pad6.Length = 30

# Sketch on XZ plane
sketch7 = doc.addObject("Sketcher::SketchObject", "Sketch006")
body.addObject(sketch7)
sketch7.AttachmentSupport = (doc.XZ_Plane, [""])
sketch7.MapMode = "FlatFace"
sketch7.AttachmentOffset = App.Placement(App.Vector(0, 0, -41), App.Rotation())
sketch7.addGeometry(Part.LineSegment(App.Vector(-39.1, -1.2, 0), App.Vector(-69.2, -1.2, 0)), False)
sketch7.addGeometry(Part.LineSegment(App.Vector(-69.2, -1.2, 0), App.Vector(-69.2, 25.4, 0)), False)
sketch7.addGeometry(Part.LineSegment(App.Vector(-69.2, 25.4, 0), App.Vector(-39.1, 25.4, 0)), False)
sketch7.addGeometry(Part.LineSegment(App.Vector(-39.1, 25.4, 0), App.Vector(-39.1, -1.2, 0)), False)
sketch7.addGeometry(Part.Circle(App.Vector(-54.1, 17.9, 0), App.Vector(0, 0, 1), 3.8), False)
sketch7.addConstraint(Sketcher.Constraint("Coincident", 0, 2, 1, 1))
sketch7.addConstraint(Sketcher.Constraint("Coincident", 1, 2, 2, 1))
sketch7.addConstraint(Sketcher.Constraint("Coincident", 2, 2, 3, 1))
sketch7.addConstraint(Sketcher.Constraint("Coincident", 3, 2, 0, 1))
sketch7.addConstraint(Sketcher.Constraint("Horizontal", 0))
sketch7.addConstraint(Sketcher.Constraint("Vertical", 1))
sketch7.addConstraint(Sketcher.Constraint("Horizontal", 2))
sketch7.addConstraint(Sketcher.Constraint("Vertical", 3))
sketch7.addConstraint(Sketcher.Constraint("Diameter", 4, Q("7.5 mm")))
sketch7.addConstraint(Sketcher.Constraint("DistanceY", 4, 3, 1, 2, Q("7.5 mm")))
sketch7.addConstraint(Sketcher.Constraint("DistanceX", 0, 2, 0, 1, Q("30 mm")))
sketch7.addConstraint(Sketcher.Constraint("DistanceX", 0, 2, 4, 3, Q("15 mm")))
sketch7.addConstraint(Sketcher.Constraint("DistanceY", 1, 1, 1, 2, Q("26.625 mm")))
sketch7.addConstraint(Sketcher.Constraint("DistanceX", 4, 3, -1, 1, Q("54.15 mm")))
sketch7.addConstraint(Sketcher.Constraint("DistanceY", 0, 2, -1, 1, Q("1.22 mm")))
pad7 = doc.addObject("PartDesign::Pad", "Pad006")
body.addObject(pad7)
pad7.Profile = sketch7
pad7.Length = 2

# Sketch on XZ plane
sketch8 = doc.addObject("Sketcher::SketchObject", "Sketch007")
body.addObject(sketch8)
sketch8.AttachmentSupport = (doc.XZ_Plane, [""])
sketch8.MapMode = "FlatFace"
sketch8.AttachmentOffset = App.Placement(App.Vector(0, 0, -41), App.Rotation())
sketch8.addGeometry(Part.LineSegment(App.Vector(-46.1, 86.5, 0), App.Vector(-42.1, 86.5, 0)), False)
sketch8.addGeometry(Part.LineSegment(App.Vector(-42.1, 86.5, 0), App.Vector(-42.1, 36.2, 0)), False)
sketch8.addGeometry(Part.LineSegment(App.Vector(-42.1, 36.2, 0), App.Vector(-66.2, 36.2, 0)), False)
sketch8.addGeometry(Part.LineSegment(App.Vector(-66.2, 36.2, 0), App.Vector(-66.2, 86.5, 0)), False)
sketch8.addGeometry(Part.LineSegment(App.Vector(-66.2, 86.5, 0), App.Vector(-62.1, 86.5, 0)), False)
sketch8.addGeometry(Part.LineSegment(App.Vector(-62.1, 86.5, 0), App.Vector(-62.1, 40.2, 0)), False)
sketch8.addGeometry(Part.LineSegment(App.Vector(-62.1, 40.2, 0), App.Vector(-46.1, 40.2, 0)), False)
sketch8.addGeometry(Part.LineSegment(App.Vector(-46.1, 40.2, 0), App.Vector(-46.1, 86.5, 0)), False)
sketch8.addGeometry(Part.Circle(App.Vector(-64.2, 68.2, 0), App.Vector(0, 0, 1), 1), False)
sketch8.addGeometry(Part.Circle(App.Vector(-44.1, 68.2, 0), App.Vector(0, 0, 1), 1), False)
sketch8.addGeometry(Part.Circle(App.Vector(-54.1, 38.2, 0), App.Vector(0, 0, 1), 1), False)
sketch8.addConstraint(Sketcher.Constraint("Coincident", 0, 2, 1, 1))
sketch8.addConstraint(Sketcher.Constraint("Coincident", 1, 2, 2, 1))
sketch8.addConstraint(Sketcher.Constraint("Coincident", 2, 2, 3, 1))
sketch8.addConstraint(Sketcher.Constraint("Coincident", 3, 2, 4, 1))
sketch8.addConstraint(Sketcher.Constraint("Coincident", 4, 2, 5, 1))
sketch8.addConstraint(Sketcher.Constraint("Coincident", 5, 2, 6, 1))
sketch8.addConstraint(Sketcher.Constraint("Coincident", 6, 2, 7, 1))
sketch8.addConstraint(Sketcher.Constraint("Coincident", 7, 2, 0, 1))
sketch8.addConstraint(Sketcher.Constraint("Horizontal", 0))
sketch8.addConstraint(Sketcher.Constraint("Vertical", 1))
sketch8.addConstraint(Sketcher.Constraint("Horizontal", 2))
sketch8.addConstraint(Sketcher.Constraint("Vertical", 3))
sketch8.addConstraint(Sketcher.Constraint("Horizontal", 4))
sketch8.addConstraint(Sketcher.Constraint("Vertical", 5))
sketch8.addConstraint(Sketcher.Constraint("Horizontal", 6))
sketch8.addConstraint(Sketcher.Constraint("Vertical", 7))
sketch8.addConstraint(Sketcher.Constraint("Equal", 8, 9))
sketch8.addConstraint(Sketcher.Constraint("Equal", 9, 10))
sketch8.addConstraint(Sketcher.Constraint("Horizontal", 8, 3, 9, 3))
sketch8.addConstraint(Sketcher.Constraint("Horizontal", 0, 2, 3, 2))
sketch8.addConstraint(Sketcher.Constraint("Equal", 0, 4))
sketch8.addConstraint(Sketcher.Constraint("Diameter", 8, Q("2 mm")))
sketch8.addConstraint(Sketcher.Constraint("DistanceX", 0, 1, 0, 2, Q("4 mm")))
sketch8.addConstraint(Sketcher.Constraint("DistanceX", 9, 3, 0, 2, Q("2 mm")))
sketch8.addConstraint(Sketcher.Constraint("DistanceY", 1, 2, 10, 3, Q("2 mm")))
sketch8.addConstraint(Sketcher.Constraint("DistanceX", 2, 2, 8, 3, Q("2 mm")))
sketch8.addConstraint(Sketcher.Constraint("DistanceY", 2, 2, 5, 2, Q("4 mm")))
sketch8.addConstraint(Sketcher.Constraint("DistanceX", 2, 2, 2, 1, Q("24 mm")))
sketch8.addConstraint(Sketcher.Constraint("DistanceX", 10, 3, 9, 3, Q("10 mm")))
sketch8.addConstraint(Sketcher.Constraint("DistanceY", 10, 3, 9, 3, Q("30 mm")))
sketch8.addConstraint(Sketcher.Constraint("DistanceY", 1, 2, 1, 1, Q("50.375 mm")))
sketch8.addConstraint(Sketcher.Constraint("DistanceX", 8, 3, -1, 1, Q("64.15 mm")))
sketch8.addConstraint(Sketcher.Constraint("DistanceY", -1, 1, 0, 2, Q("86.53 mm")))
pad8 = doc.addObject("PartDesign::Pad", "Pad007")
body.addObject(pad8)
pad8.Profile = sketch8
pad8.Length = 3

# Sketch on XZ plane
sketch9 = doc.addObject("Sketcher::SketchObject", "Sketch008")
body.addObject(sketch9)
sketch9.AttachmentSupport = (doc.XZ_Plane, [""])
sketch9.MapMode = "FlatFace"
sketch9.AttachmentOffset = App.Placement(App.Vector(0, 0, -41), App.Rotation())
sketch9.addGeometry(Part.LineSegment(App.Vector(-39.1, -6.2, 0), App.Vector(-39.1, 91.5, 0)), False)
sketch9.addGeometry(Part.LineSegment(App.Vector(-39.1, 91.5, 0), App.Vector(-36.1, 91.5, 0)), False)
sketch9.addGeometry(Part.LineSegment(App.Vector(-36.1, 91.5, 0), App.Vector(-36.1, -6.2, 0)), False)
sketch9.addGeometry(Part.LineSegment(App.Vector(-36.1, -6.2, 0), App.Vector(-39.1, -6.2, 0)), False)
sketch9.addConstraint(Sketcher.Constraint("Coincident", 0, 2, 1, 1))
sketch9.addConstraint(Sketcher.Constraint("Coincident", 1, 2, 2, 1))
sketch9.addConstraint(Sketcher.Constraint("Coincident", 2, 2, 3, 1))
sketch9.addConstraint(Sketcher.Constraint("Coincident", 3, 2, 0, 1))
sketch9.addConstraint(Sketcher.Constraint("Vertical", 0))
sketch9.addConstraint(Sketcher.Constraint("Horizontal", 1))
sketch9.addConstraint(Sketcher.Constraint("Vertical", 2))
sketch9.addConstraint(Sketcher.Constraint("Horizontal", 3))
sketch9.addConstraint(Sketcher.Constraint("DistanceX", 1, 1, 1, 2, Q("3 mm")))
sketch9.addConstraint(Sketcher.Constraint("DistanceY", 0, 1, 0, 2, Q("97.75 mm")))
sketch9.addConstraint(Sketcher.Constraint("DistanceX", 0, 2, -1, 1, Q("39.15 mm")))
sketch9.addConstraint(Sketcher.Constraint("DistanceY", -1, 1, 0, 2, Q("91.53 mm")))
pad9 = doc.addObject("PartDesign::Pad", "Pad008")
body.addObject(pad9)
pad9.Profile = sketch9
pad9.Length = 3

# Sketch on XZ plane
sketch10 = doc.addObject("Sketcher::SketchObject", "Sketch009")
body.addObject(sketch10)
sketch10.AttachmentSupport = (doc.XZ_Plane, [""])
sketch10.MapMode = "FlatFace"
sketch10.AttachmentOffset = App.Placement(App.Vector(0, 0, -41), App.Rotation())
sketch10.addGeometry(Part.LineSegment(App.Vector(-108.2, -1.2, 0), App.Vector(-108.2, 86.5, 0)), False)
sketch10.addGeometry(Part.LineSegment(App.Vector(-108.2, 86.5, 0), App.Vector(-105.2, 86.5, 0)), False)
sketch10.addGeometry(Part.LineSegment(App.Vector(-105.2, 86.5, 0), App.Vector(-105.2, -1.2, 0)), False)
sketch10.addGeometry(Part.LineSegment(App.Vector(-105.2, -1.2, 0), App.Vector(-108.2, -1.2, 0)), False)
sketch10.addConstraint(Sketcher.Constraint("Coincident", 0, 2, 1, 1))
sketch10.addConstraint(Sketcher.Constraint("Coincident", 1, 2, 2, 1))
sketch10.addConstraint(Sketcher.Constraint("Coincident", 2, 2, 3, 1))
sketch10.addConstraint(Sketcher.Constraint("Coincident", 3, 2, 0, 1))
sketch10.addConstraint(Sketcher.Constraint("Vertical", 0))
sketch10.addConstraint(Sketcher.Constraint("Horizontal", 1))
sketch10.addConstraint(Sketcher.Constraint("Vertical", 2))
sketch10.addConstraint(Sketcher.Constraint("Horizontal", 3))
sketch10.addConstraint(Sketcher.Constraint("DistanceX", 1, 1, 1, 2, Q("3 mm")))
sketch10.addConstraint(Sketcher.Constraint("DistanceY", 0, 1, 0, 2, Q("87.75 mm")))
sketch10.addConstraint(Sketcher.Constraint("DistanceX", 0, 2, -1, 1, Q("108.15 mm")))
sketch10.addConstraint(Sketcher.Constraint("DistanceY", -1, 1, 0, 2, Q("86.53 mm")))
pad10 = doc.addObject("PartDesign::Pad", "Pad009")
body.addObject(pad10)
pad10.Profile = sketch10
pad10.Length = 3

# Sketch on XZ plane
sketch11 = doc.addObject("Sketcher::SketchObject", "Sketch010")
body.addObject(sketch11)
sketch11.AttachmentSupport = (doc.XZ_Plane, [""])
sketch11.MapMode = "FlatFace"
sketch11.AttachmentOffset = App.Placement(App.Vector(0, 0, -41), App.Rotation())
sketch11.addGeometry(Part.LineSegment(App.Vector(-87, 74, 0), App.Vector(-87, 87, 0)), False)
sketch11.addGeometry(Part.LineSegment(App.Vector(-87, 87, 0), App.Vector(-79, 87, 0)), False)
sketch11.addGeometry(Part.LineSegment(App.Vector(-79, 87, 0), App.Vector(-79, 74, 0)), False)
sketch11.addGeometry(Part.LineSegment(App.Vector(-79, 74, 0), App.Vector(-87, 74, 0)), False)
sketch11.addGeometry(Part.LineSegment(App.Vector(-87, 0, 0), App.Vector(-87, 11, 0)), False)
sketch11.addGeometry(Part.LineSegment(App.Vector(-87, 11, 0), App.Vector(-79, 11, 0)), False)
sketch11.addGeometry(Part.LineSegment(App.Vector(-79, 11, 0), App.Vector(-79, 0, 0)), False)
sketch11.addGeometry(Part.LineSegment(App.Vector(-79, 0, 0), App.Vector(-87, 0, 0)), False)
sketch11.addGeometry(Part.LineSegment(App.Vector(-69, 25, 0), App.Vector(-62, 25, 0)), False)
sketch11.addGeometry(Part.LineSegment(App.Vector(-62, 25, 0), App.Vector(-62, 0, 0)), False)
sketch11.addGeometry(Part.LineSegment(App.Vector(-62, 0, 0), App.Vector(-69, 0, 0)), False)
sketch11.addGeometry(Part.LineSegment(App.Vector(-69, 0, 0), App.Vector(-69, 25, 0)), False)
sketch11.addGeometry(Part.LineSegment(App.Vector(-58, 10, 0), App.Vector(-50, 10, 0)), False)
sketch11.addGeometry(Part.LineSegment(App.Vector(-50, 10, 0), App.Vector(-50, 0, 0)), False)
sketch11.addGeometry(Part.LineSegment(App.Vector(-50, 0, 0), App.Vector(-58, 0, 0)), False)
sketch11.addGeometry(Part.LineSegment(App.Vector(-58, 0, 0), App.Vector(-58, 10, 0)), False)
sketch11.addGeometry(Part.LineSegment(App.Vector(-47, 0, 0), App.Vector(-47, 25, 0)), False)
sketch11.addGeometry(Part.LineSegment(App.Vector(-47, 25, 0), App.Vector(-39, 25, 0)), False)
sketch11.addGeometry(Part.LineSegment(App.Vector(-39, 25, 0), App.Vector(-39, 0, 0)), False)
sketch11.addGeometry(Part.LineSegment(App.Vector(-39, 0, 0), App.Vector(-47, 0, 0)), False)
sketch11.addConstraint(Sketcher.Constraint("Coincident", 0, 2, 1, 1))
sketch11.addConstraint(Sketcher.Constraint("Coincident", 1, 2, 2, 1))
sketch11.addConstraint(Sketcher.Constraint("Coincident", 2, 2, 3, 1))
sketch11.addConstraint(Sketcher.Constraint("Coincident", 3, 2, 0, 1))
sketch11.addConstraint(Sketcher.Constraint("Coincident", 4, 2, 5, 1))
sketch11.addConstraint(Sketcher.Constraint("Coincident", 5, 2, 6, 1))
sketch11.addConstraint(Sketcher.Constraint("Coincident", 6, 2, 7, 1))
sketch11.addConstraint(Sketcher.Constraint("Coincident", 7, 2, 4, 1))
sketch11.addConstraint(Sketcher.Constraint("Coincident", 8, 2, 9, 1))
sketch11.addConstraint(Sketcher.Constraint("Coincident", 9, 2, 10, 1))
sketch11.addConstraint(Sketcher.Constraint("Coincident", 10, 2, 11, 1))
sketch11.addConstraint(Sketcher.Constraint("Coincident", 11, 2, 8, 1))
sketch11.addConstraint(Sketcher.Constraint("Coincident", 12, 2, 13, 1))
sketch11.addConstraint(Sketcher.Constraint("Coincident", 13, 2, 14, 1))
sketch11.addConstraint(Sketcher.Constraint("Coincident", 14, 2, 15, 1))
sketch11.addConstraint(Sketcher.Constraint("Coincident", 15, 2, 12, 1))
sketch11.addConstraint(Sketcher.Constraint("Coincident", 16, 2, 17, 1))
sketch11.addConstraint(Sketcher.Constraint("Coincident", 17, 2, 18, 1))
sketch11.addConstraint(Sketcher.Constraint("Coincident", 18, 2, 19, 1))
sketch11.addConstraint(Sketcher.Constraint("Coincident", 19, 2, 16, 1))
sketch11.addConstraint(Sketcher.Constraint("Vertical", 0))
sketch11.addConstraint(Sketcher.Constraint("Horizontal", 1))
sketch11.addConstraint(Sketcher.Constraint("Vertical", 2))
sketch11.addConstraint(Sketcher.Constraint("Horizontal", 3))
sketch11.addConstraint(Sketcher.Constraint("Vertical", 4))
sketch11.addConstraint(Sketcher.Constraint("Horizontal", 5))
sketch11.addConstraint(Sketcher.Constraint("Vertical", 6))
sketch11.addConstraint(Sketcher.Constraint("Horizontal", 7))
sketch11.addConstraint(Sketcher.Constraint("Horizontal", 8))
sketch11.addConstraint(Sketcher.Constraint("Vertical", 9))
sketch11.addConstraint(Sketcher.Constraint("Horizontal", 10))
sketch11.addConstraint(Sketcher.Constraint("Vertical", 11))
sketch11.addConstraint(Sketcher.Constraint("Horizontal", 12))
sketch11.addConstraint(Sketcher.Constraint("Vertical", 13))
sketch11.addConstraint(Sketcher.Constraint("Horizontal", 14))
sketch11.addConstraint(Sketcher.Constraint("Vertical", 15))
sketch11.addConstraint(Sketcher.Constraint("Vertical", 16))
sketch11.addConstraint(Sketcher.Constraint("Horizontal", 17))
sketch11.addConstraint(Sketcher.Constraint("Vertical", 18))
sketch11.addConstraint(Sketcher.Constraint("Horizontal", 19))
sketch11.addConstraint(Sketcher.Constraint("PointOnObject", 6, 2, -1))
sketch11.addConstraint(Sketcher.Constraint("PointOnObject", 9, 2, -1))
sketch11.addConstraint(Sketcher.Constraint("PointOnObject", 13, 2, -1))
sketch11.addConstraint(Sketcher.Constraint("PointOnObject", 18, 2, -1))
sketch11.addConstraint(Sketcher.Constraint("Horizontal", 11, 2, 16, 2))
sketch11.addConstraint(Sketcher.Constraint("Vertical", 3, 2, 4, 2))
sketch11.addConstraint(Sketcher.Constraint("Vertical", 2, 2, 5, 2))
sketch11.addConstraint(Sketcher.Constraint("DistanceX", 12, 1, 12, 2, Q("8 mm")))
sketch11.addConstraint(Sketcher.Constraint("DistanceX", 8, 1, 8, 2, Q("7.2 mm")))
sketch11.addConstraint(Sketcher.Constraint("DistanceY", 4, 2, 3, 2, Q("63 mm")))
sketch11.addConstraint(Sketcher.Constraint("DistanceY", 12, 2, 8, 2, Q("15 mm")))
sketch11.addConstraint(Sketcher.Constraint("DistanceX", 10, 2, 12, 2, Q("19 mm")))
sketch11.addConstraint(Sketcher.Constraint("DistanceX", 12, 2, 17, 2, Q("11 mm")))
sketch11.addConstraint(Sketcher.Constraint("DistanceX", 1, 1, 1, 2, Q("7.62 mm")))
sketch11.addConstraint(Sketcher.Constraint("DistanceX", 17, 1, 17, 2, Q("7.92 mm")))
sketch11.addConstraint(Sketcher.Constraint("DistanceY", 0, 1, 0, 2, Q("12.375 mm")))
sketch11.addConstraint(Sketcher.Constraint("DistanceY", 4, 1, 4, 2, Q("11.155 mm")))
sketch11.addConstraint(Sketcher.Constraint("DistanceY", 9, 2, 9, 1, Q("25.405 mm")))
sketch11.addConstraint(Sketcher.Constraint("DistanceX", 0, 2, -1, 1, Q("86.93 mm")))
sketch11.addConstraint(Sketcher.Constraint("DistanceX", 8, 2, -1, 1, Q("61.95 mm")))
pocket1 = doc.addObject("PartDesign::Pocket", "Pocket")
body.addObject(pocket1)
pocket1.Profile = sketch11
pocket1.Length = 10
pocket1.Reversed = True

doc.recompute()
